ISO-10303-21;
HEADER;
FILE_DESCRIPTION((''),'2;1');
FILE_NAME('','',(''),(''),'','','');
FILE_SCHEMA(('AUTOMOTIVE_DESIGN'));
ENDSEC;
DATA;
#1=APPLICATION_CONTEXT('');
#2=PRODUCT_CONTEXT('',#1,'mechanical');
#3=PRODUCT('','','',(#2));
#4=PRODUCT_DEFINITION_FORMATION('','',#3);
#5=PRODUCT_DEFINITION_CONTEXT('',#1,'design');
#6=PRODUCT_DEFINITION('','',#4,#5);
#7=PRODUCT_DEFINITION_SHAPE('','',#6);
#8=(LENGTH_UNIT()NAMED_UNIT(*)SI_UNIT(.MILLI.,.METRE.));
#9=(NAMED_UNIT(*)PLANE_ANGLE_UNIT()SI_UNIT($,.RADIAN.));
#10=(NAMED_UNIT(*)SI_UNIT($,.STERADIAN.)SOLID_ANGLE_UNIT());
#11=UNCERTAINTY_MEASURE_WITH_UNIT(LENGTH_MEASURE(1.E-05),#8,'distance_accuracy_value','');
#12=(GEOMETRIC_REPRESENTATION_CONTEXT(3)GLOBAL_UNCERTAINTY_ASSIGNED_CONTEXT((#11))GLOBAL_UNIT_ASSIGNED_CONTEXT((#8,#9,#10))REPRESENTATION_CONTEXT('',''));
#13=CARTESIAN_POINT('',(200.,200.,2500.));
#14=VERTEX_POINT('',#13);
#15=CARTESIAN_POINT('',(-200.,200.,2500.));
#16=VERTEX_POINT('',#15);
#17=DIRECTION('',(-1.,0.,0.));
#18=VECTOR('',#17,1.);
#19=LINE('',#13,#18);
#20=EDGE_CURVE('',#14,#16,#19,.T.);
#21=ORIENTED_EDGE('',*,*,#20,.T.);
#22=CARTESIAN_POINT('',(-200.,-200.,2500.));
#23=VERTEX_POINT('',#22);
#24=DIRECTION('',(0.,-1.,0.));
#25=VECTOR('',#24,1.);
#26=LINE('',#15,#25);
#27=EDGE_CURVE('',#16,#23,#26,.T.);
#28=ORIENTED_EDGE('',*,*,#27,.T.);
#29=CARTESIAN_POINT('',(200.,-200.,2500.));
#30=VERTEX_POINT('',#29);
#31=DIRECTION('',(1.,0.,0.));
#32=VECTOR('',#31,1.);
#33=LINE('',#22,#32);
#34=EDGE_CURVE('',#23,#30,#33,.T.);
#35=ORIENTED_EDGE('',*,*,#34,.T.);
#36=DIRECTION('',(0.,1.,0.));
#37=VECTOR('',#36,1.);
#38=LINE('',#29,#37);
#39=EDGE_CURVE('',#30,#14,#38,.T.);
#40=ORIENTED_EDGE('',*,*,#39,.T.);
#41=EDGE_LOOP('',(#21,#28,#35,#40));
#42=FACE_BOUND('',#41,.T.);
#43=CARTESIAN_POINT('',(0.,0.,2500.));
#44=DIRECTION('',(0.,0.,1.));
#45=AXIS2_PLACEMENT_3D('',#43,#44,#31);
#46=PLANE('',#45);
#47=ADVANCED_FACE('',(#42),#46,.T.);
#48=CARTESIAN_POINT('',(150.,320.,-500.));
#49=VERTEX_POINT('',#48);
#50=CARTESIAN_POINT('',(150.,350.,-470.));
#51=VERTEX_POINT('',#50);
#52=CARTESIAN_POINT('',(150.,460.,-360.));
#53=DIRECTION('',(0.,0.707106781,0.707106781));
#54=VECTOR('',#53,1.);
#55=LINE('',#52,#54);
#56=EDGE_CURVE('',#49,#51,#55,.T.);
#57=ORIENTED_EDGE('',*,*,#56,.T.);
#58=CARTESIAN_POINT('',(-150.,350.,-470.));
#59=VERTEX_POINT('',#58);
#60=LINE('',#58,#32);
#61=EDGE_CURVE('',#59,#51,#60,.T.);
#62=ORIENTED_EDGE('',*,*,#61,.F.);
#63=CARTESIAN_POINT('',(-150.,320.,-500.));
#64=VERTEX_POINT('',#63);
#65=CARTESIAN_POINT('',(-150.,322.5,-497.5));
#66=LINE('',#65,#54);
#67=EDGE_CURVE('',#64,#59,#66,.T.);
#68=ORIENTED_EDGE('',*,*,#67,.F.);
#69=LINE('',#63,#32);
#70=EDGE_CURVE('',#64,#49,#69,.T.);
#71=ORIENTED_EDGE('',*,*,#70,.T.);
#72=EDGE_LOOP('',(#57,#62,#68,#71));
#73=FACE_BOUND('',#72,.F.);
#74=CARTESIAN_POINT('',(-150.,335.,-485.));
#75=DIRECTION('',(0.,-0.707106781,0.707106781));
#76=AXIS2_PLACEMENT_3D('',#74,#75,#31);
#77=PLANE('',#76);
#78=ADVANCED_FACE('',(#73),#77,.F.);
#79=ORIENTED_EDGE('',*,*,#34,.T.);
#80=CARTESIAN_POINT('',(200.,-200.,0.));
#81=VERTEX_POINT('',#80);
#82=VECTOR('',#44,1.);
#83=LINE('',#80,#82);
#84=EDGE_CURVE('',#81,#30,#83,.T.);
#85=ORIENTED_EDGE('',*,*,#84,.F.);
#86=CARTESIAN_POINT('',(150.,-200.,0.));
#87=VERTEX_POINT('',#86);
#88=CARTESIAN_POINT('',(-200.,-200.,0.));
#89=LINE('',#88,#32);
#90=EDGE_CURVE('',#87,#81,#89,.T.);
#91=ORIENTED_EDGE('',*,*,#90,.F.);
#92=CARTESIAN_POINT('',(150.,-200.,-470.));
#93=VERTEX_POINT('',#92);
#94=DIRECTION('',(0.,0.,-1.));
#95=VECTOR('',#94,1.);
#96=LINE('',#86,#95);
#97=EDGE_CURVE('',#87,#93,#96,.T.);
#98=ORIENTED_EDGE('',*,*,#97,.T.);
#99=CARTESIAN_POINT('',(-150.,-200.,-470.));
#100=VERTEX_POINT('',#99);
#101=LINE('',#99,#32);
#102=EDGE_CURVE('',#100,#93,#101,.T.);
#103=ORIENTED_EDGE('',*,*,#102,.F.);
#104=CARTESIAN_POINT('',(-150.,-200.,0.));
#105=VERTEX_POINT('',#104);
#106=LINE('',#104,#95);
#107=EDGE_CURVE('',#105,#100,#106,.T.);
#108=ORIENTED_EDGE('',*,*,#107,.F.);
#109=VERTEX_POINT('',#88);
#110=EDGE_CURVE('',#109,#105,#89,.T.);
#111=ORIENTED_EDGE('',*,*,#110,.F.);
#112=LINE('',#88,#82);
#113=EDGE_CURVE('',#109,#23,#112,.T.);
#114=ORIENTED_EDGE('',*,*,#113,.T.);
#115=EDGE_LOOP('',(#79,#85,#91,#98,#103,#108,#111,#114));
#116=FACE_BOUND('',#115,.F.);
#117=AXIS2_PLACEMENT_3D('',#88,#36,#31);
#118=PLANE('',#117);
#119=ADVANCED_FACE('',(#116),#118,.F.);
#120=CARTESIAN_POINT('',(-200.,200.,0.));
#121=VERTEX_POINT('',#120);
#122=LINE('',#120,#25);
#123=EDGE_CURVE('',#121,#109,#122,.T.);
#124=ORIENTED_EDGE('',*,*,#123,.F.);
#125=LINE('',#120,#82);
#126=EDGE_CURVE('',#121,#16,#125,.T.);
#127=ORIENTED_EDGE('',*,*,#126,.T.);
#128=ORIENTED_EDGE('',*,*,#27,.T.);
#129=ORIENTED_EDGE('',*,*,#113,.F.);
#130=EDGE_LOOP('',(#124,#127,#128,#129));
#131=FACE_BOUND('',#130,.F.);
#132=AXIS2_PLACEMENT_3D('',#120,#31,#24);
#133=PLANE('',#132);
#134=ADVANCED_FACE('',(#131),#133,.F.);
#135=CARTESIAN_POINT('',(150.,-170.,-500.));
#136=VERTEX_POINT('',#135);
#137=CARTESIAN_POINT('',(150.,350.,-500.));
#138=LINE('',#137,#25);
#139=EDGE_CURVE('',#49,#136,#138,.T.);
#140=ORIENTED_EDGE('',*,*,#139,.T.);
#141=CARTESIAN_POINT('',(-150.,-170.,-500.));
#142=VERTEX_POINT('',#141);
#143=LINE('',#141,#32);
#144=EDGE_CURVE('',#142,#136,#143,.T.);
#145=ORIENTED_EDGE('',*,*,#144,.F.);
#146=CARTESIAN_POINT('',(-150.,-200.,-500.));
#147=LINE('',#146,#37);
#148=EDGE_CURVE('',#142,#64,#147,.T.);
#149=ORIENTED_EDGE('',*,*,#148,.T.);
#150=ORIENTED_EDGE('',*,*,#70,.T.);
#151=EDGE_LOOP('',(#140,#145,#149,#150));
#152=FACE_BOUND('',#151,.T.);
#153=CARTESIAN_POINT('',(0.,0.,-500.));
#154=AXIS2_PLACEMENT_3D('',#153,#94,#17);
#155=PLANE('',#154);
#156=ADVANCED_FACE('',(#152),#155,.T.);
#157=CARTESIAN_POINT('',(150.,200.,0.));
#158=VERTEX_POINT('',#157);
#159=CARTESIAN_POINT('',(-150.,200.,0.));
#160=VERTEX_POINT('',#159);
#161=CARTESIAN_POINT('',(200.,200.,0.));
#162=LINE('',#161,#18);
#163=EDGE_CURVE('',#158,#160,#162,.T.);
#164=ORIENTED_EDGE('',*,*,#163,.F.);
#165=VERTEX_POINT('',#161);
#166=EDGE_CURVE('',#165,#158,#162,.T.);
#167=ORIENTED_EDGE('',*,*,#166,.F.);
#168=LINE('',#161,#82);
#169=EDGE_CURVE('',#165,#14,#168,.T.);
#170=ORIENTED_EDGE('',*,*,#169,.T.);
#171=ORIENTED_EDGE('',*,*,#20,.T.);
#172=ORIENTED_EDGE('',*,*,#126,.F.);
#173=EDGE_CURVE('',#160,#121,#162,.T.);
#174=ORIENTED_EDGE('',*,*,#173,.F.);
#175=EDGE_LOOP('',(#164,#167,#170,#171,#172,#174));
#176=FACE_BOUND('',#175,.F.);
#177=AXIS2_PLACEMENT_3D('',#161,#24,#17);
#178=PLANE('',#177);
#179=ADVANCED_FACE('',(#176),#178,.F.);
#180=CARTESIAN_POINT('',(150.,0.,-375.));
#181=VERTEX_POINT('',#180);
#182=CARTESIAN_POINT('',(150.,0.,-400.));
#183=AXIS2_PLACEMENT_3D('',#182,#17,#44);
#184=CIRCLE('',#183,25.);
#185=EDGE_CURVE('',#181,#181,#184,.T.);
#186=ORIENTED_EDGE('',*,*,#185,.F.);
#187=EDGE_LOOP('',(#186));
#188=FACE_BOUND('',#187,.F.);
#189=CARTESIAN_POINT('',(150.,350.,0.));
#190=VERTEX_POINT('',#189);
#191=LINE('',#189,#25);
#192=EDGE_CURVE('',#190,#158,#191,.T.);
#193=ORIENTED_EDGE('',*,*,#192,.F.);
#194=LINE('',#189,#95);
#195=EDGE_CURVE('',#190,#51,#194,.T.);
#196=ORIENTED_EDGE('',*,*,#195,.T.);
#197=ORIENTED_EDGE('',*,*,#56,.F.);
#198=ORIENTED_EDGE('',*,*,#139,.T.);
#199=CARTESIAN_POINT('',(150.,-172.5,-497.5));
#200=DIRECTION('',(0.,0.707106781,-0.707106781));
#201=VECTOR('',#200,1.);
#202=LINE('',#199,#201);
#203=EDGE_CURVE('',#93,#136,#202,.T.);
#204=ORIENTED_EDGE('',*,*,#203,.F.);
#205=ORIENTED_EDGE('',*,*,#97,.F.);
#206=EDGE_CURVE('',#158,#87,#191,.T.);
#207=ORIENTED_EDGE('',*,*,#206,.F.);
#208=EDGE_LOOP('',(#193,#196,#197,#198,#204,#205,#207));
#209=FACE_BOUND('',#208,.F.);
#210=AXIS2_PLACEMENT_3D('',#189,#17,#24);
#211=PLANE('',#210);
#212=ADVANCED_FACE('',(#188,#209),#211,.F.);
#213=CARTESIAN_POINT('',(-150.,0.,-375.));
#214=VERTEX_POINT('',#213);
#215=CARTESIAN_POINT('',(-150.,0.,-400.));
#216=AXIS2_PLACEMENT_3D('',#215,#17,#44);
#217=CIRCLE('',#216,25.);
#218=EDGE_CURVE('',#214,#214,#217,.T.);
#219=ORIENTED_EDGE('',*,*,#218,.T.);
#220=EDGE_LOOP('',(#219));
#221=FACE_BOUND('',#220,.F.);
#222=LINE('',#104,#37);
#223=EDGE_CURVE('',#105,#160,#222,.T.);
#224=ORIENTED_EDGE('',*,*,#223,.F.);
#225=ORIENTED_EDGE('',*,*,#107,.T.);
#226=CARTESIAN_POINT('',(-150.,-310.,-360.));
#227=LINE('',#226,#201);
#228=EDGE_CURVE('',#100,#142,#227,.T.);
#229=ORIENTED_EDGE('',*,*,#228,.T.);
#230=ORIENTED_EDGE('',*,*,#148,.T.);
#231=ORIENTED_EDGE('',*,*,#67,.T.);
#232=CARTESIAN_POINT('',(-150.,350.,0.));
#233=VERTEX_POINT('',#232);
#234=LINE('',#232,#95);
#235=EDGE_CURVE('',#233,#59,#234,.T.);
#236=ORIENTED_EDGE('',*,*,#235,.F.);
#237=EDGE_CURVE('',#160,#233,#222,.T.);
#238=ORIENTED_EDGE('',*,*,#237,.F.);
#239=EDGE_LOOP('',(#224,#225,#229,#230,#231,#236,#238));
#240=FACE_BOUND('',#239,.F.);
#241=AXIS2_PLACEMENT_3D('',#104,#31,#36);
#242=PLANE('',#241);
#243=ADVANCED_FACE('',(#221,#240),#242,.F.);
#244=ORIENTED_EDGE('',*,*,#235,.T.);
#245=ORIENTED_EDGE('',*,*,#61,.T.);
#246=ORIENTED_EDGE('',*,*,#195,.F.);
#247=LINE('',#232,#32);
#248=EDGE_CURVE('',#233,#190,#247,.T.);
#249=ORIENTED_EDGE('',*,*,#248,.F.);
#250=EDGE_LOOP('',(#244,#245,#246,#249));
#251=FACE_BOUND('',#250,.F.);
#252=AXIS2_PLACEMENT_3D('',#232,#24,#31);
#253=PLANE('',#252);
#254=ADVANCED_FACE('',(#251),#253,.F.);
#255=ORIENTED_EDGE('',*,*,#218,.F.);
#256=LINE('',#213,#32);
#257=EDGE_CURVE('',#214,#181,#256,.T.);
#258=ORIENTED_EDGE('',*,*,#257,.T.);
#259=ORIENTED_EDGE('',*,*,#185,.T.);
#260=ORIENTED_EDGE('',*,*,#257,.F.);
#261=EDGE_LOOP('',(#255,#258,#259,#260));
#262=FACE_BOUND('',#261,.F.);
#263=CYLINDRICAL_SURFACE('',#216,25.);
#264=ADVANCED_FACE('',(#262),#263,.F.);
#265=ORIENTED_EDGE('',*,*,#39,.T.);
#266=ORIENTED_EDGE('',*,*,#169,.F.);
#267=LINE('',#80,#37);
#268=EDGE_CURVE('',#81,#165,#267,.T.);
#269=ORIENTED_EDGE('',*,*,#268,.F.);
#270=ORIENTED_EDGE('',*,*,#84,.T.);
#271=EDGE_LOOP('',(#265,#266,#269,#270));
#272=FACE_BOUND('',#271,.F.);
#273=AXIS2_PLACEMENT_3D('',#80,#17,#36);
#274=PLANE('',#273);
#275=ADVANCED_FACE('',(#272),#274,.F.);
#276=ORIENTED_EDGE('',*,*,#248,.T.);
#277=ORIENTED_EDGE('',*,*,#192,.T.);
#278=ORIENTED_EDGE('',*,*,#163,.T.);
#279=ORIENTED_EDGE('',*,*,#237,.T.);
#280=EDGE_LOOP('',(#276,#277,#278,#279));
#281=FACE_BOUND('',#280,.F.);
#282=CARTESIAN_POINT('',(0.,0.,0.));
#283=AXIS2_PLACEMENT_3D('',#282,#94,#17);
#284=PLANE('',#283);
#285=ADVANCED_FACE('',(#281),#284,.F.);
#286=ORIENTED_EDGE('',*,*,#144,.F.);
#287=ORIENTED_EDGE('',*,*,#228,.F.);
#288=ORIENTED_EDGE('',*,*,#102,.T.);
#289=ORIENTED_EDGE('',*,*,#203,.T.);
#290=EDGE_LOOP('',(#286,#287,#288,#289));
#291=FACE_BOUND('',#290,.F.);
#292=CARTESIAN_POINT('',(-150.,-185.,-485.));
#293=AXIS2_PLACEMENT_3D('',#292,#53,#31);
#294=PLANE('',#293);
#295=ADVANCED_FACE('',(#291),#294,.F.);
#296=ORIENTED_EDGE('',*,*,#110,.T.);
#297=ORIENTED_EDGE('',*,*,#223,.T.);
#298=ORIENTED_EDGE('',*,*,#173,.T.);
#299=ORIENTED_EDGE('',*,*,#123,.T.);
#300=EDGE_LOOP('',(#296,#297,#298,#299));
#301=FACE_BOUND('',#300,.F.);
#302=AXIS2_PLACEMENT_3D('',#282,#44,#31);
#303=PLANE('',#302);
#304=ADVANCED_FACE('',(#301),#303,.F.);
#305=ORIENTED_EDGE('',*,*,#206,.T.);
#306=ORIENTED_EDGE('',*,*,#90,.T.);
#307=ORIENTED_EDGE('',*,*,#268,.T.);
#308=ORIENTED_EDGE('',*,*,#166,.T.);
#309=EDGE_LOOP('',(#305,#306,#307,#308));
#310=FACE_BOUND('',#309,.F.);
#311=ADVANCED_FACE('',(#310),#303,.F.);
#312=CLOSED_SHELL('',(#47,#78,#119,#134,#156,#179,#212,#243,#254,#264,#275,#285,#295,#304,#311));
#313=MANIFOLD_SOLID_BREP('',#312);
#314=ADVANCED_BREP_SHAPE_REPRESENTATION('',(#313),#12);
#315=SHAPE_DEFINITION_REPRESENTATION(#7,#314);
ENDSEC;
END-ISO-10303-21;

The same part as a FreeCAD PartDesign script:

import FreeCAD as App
import Part
import Sketcher
from FreeCAD import Vector


def edges_at(feature, points):
    """Names of the edges that pass closest to the given points."""
    edges = feature.Shape.Edges
    near = lambda p: min(range(len(edges)), key=lambda i: edges[i].distToShape(Part.Vertex(*p))[0])
    return sorted({f"Edge{near(p) + 1}" for p in points})

doc = App.newDocument("Part")
body = doc.addObject("PartDesign::Body", "Body")

sketch1 = body.newObject("Sketcher::SketchObject", "Sketch")
sketch1.AttachmentSupport = (doc.getObject("XY_Plane"), [""])
sketch1.MapMode = "FlatFace"
sketch1.addGeometry(Part.LineSegment(Vector(-200, 200, 0), Vector(-200, -200, 0)), False)
sketch1.addGeometry(Part.LineSegment(Vector(-200, -200, 0), Vector(200, -200, 0)), False)
sketch1.addGeometry(Part.LineSegment(Vector(200, -200, 0), Vector(200, 200, 0)), False)
sketch1.addGeometry(Part.LineSegment(Vector(200, 200, 0), Vector(-200, 200, 0)), False)
sketch1.addConstraint(Sketcher.Constraint("Coincident", 0, 2, 1, 1))
sketch1.addConstraint(Sketcher.Constraint("Coincident", 1, 2, 2, 1))
sketch1.addConstraint(Sketcher.Constraint("Coincident", 2, 2, 3, 1))
sketch1.addConstraint(Sketcher.Constraint("Coincident", 3, 2, 0, 1))
sketch1.addConstraint(Sketcher.Constraint("Vertical", 0))
sketch1.addConstraint(Sketcher.Constraint("Horizontal", 1))
sketch1.addConstraint(Sketcher.Constraint("Vertical", 2))
sketch1.addConstraint(Sketcher.Constraint("Horizontal", 3))
sketch1.addConstraint(Sketcher.Constraint("Symmetric", 0, 2, 2, 2, -1, 1))
sketch1.addConstraint(Sketcher.Constraint("Equal", 3, 0))
sketch1.addConstraint(Sketcher.Constraint("DistanceX", 1, 1, 1, 2, 400.0))
pad1 = body.newObject("PartDesign::Pad", "Pad")
pad1.Profile = sketch1
pad1.Length = 2500

sketch2 = body.newObject("Sketcher::SketchObject", "Sketch001")
sketch2.AttachmentSupport = (doc.getObject("XY_Plane"), [""])
sketch2.MapMode = "FlatFace"
sketch2.addGeometry(Part.LineSegment(Vector(150, -200, 0), Vector(-150, -200, 0)), False)
sketch2.addGeometry(Part.LineSegment(Vector(-150, -200, 0), Vector(-150, 350, 0)), False)
sketch2.addGeometry(Part.LineSegment(Vector(-150, 350, 0), Vector(150, 350, 0)), False)
sketch2.addGeometry(Part.LineSegment(Vector(150, 350, 0), Vector(150, -200, 0)), False)
sketch2.addConstraint(Sketcher.Constraint("Coincident", 0, 2, 1, 1))
sketch2.addConstraint(Sketcher.Constraint("Coincident", 1, 2, 2, 1))
sketch2.addConstraint(Sketcher.Constraint("Coincident", 2, 2, 3, 1))
sketch2.addConstraint(Sketcher.Constraint("Coincident", 3, 2, 0, 1))
sketch2.addConstraint(Sketcher.Constraint("Horizontal", 0))
sketch2.addConstraint(Sketcher.Constraint("Vertical", 1))
sketch2.addConstraint(Sketcher.Constraint("Horizontal", 2))
sketch2.addConstraint(Sketcher.Constraint("Vertical", 3))
sketch2.addConstraint(Sketcher.Constraint("DistanceX", 0, 2, 0, 1, 300.0))
sketch2.addConstraint(Sketcher.Constraint("DistanceY", 1, 1, 1, 2, 550.0))
sketch2.addConstraint(Sketcher.Constraint("DistanceX", 0, 2, -1, 1, 150.0))
sketch2.addConstraint(Sketcher.Constraint("DistanceY", 0, 2, -1, 1, 200.0))
pad2 = body.newObject("PartDesign::Pad", "Pad001")
pad2.Profile = sketch2
pad2.Length = 500
pad2.Reversed = True

sketch3 = body.newObject("Sketcher::SketchObject", "Sketch002")
sketch3.AttachmentSupport = (doc.getObject("YZ_Plane"), [""])
sketch3.MapMode = "FlatFace"
sketch3.AttachmentOffset = App.Placement(Vector(0, 0, -150), App.Rotation())
sketch3.addGeometry(Part.Circle(Vector(0, -400, 0), Vector(0, 0, 1), 25), False)
sketch3.addConstraint(Sketcher.Constraint("PointOnObject", 0, 3, -2))
sketch3.addConstraint(Sketcher.Constraint("Diameter", 0, 50.0))
sketch3.addConstraint(Sketcher.Constraint("DistanceY", 0, 3, -1, 1, 400.0))
pocket1 = body.newObject("PartDesign::Pocket", "Pocket")
pocket1.Profile = sketch3
pocket1.Length = 500
pocket1.Reversed = True
doc.recompute()

chamfer = body.newObject("PartDesign::Chamfer", "Chamfer")
chamfer.Base = (pocket1, edges_at(pocket1, [(0, -200, -500), (0, 350, -500)]))
chamfer.Size = 30

doc.recompute()
